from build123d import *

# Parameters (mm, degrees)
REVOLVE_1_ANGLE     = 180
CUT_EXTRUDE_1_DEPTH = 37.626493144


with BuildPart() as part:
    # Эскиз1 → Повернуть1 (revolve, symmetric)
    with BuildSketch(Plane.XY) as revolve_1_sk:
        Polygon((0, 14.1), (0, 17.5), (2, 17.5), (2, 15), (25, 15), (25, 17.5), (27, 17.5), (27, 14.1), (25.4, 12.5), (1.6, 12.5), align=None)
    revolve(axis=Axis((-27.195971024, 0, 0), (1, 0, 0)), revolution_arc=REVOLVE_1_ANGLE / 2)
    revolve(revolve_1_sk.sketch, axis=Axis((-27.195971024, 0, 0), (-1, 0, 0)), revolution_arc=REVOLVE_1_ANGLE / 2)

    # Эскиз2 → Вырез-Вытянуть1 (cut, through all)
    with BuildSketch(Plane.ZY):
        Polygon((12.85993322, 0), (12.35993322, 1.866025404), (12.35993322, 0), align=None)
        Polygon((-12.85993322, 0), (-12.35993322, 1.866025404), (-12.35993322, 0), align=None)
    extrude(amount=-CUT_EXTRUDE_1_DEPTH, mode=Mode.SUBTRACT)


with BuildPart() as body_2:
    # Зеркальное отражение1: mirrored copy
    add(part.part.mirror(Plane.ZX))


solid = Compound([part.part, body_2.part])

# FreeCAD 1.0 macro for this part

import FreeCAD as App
import Part
import Sketcher
Q = App.Units.Quantity


def add_polygon(sketch, points):
    """Adds a closed chain of lines whose ends are joined by coincident constraints."""
    first, n = sketch.GeometryCount, len(points)
    for a, b in zip(points, points[1:] + points[:1]):
        sketch.addGeometry(Part.LineSegment(App.Vector(*a, 0), App.Vector(*b, 0)), False)
    for i in range(n):
        sketch.addConstraint(Sketcher.Constraint("Coincident", first + i, 2, first + (i + 1) % n, 1))

doc = App.newDocument("Part")
params = doc.addObject("Spreadsheet::Sheet", "Params")
for row, (alias, value) in enumerate([
    ("sketch1_width", "2 mm"),
    ("sketch1_width2", "23 mm"),
    ("sketch1_width3", "23.8 mm"),
    ("sketch1_height", "3.4 mm"),
    ("sketch1_height2", "2.5 mm"),
    ("revolution_angle", "90 deg"),
    ("sketch2_width", "2 mm"),
    ("sketch2_width2", "23 mm"),
    ("sketch2_width3", "23.8 mm"),
    ("sketch2_height", "3.4 mm"),
    ("sketch2_height2", "2.5 mm"),
    ("revolution2_angle", "90 deg"),
    ("sketch3_height", "0.5 mm"),
], start=1):
    params.set(f"A{row}", alias)
    params.set(f"B{row}", "=" + value)
    params.setAlias(f"B{row}", alias)

body = doc.addObject("PartDesign::Body", "Body")

sketch1 = doc.addObject("Sketcher::SketchObject", "Sketch")
body.addObject(sketch1)
sketch1.AttachmentSupport = (doc.XY_Plane, [""])
sketch1.MapMode = "FlatFace"
add_polygon(sketch1, [(0, 17.5), (0, 14.1), (1.6, 12.5), (25.4, 12.5), (27, 14.1), (27, 17.5), (25, 17.5), (25, 15), (2, 15), (2, 17.5)])
sketch1.addConstraint([
    Sketcher.Constraint("Vertical", 0),
    Sketcher.Constraint("Horizontal", 2),
    Sketcher.Constraint("Vertical", 4),
    Sketcher.Constraint("Horizontal", 5),
    Sketcher.Constraint("Vertical", 6),
    Sketcher.Constraint("Horizontal", 7),
    Sketcher.Constraint("Vertical", 8),
    Sketcher.Constraint("Horizontal", 9),
    Sketcher.Constraint("PointOnObject", 0, 2, -2),
    Sketcher.Constraint("Perpendicular", 1, 3),
    Sketcher.Constraint("Horizontal", 0, 2, 3, 2),
    Sketcher.Constraint("Horizontal", 5, 2, 8, 2),
    Sketcher.Constraint("Equal", 5, 9),
    Sketcher.Constraint("Equal", 1, 3),
    Sketcher.Constraint("DistanceX", 5, 2, 5, 1, Q("2 mm")),
    Sketcher.Constraint("DistanceX", 7, 2, 7, 1, Q("23 mm")),
    Sketcher.Constraint("DistanceX", 2, 1, 2, 2, Q("23.8 mm")),
    Sketcher.Constraint("DistanceY", 0, 2, 0, 1, Q("3.4 mm")),
    Sketcher.Constraint("DistanceY", 6, 2, 6, 1, Q("2.5 mm")),
    Sketcher.Constraint("DistanceY", -1, 1, 6, 2, Q("15 mm")),
])
sketch1.setExpression("Constraints[24]", "Params.sketch1_width")
sketch1.setExpression("Constraints[25]", "Params.sketch1_width2")
sketch1.setExpression("Constraints[26]", "Params.sketch1_width3")
sketch1.setExpression("Constraints[27]", "Params.sketch1_height")
sketch1.setExpression("Constraints[28]", "Params.sketch1_height2")
revolution = doc.addObject("PartDesign::Revolution", "Revolution")
body.addObject(revolution)
revolution.Profile = sketch1
revolution.ReferenceAxis = (sketch1, ["H_Axis"])
revolution.setExpression("Angle", "Params.revolution_angle")

sketch2 = doc.addObject("Sketcher::SketchObject", "Sketch001")
body.addObject(sketch2)
sketch2.AttachmentSupport = (doc.XY_Plane, [""])
sketch2.MapMode = "FlatFace"
add_polygon(sketch2, [(0, 17.5), (0, 14.1), (1.6, 12.5), (25.4, 12.5), (27, 14.1), (27, 17.5), (25, 17.5), (25, 15), (2, 15), (2, 17.5)])
sketch2.addConstraint([
    Sketcher.Constraint("Vertical", 0),
    Sketcher.Constraint("Horizontal", 2),
    Sketcher.Constraint("Vertical", 4),
    Sketcher.Constraint("Horizontal", 5),
    Sketcher.Constraint("Vertical", 6),
    Sketcher.Constraint("Horizontal", 7),
    Sketcher.Constraint("Vertical", 8),
    Sketcher.Constraint("Horizontal", 9),
    Sketcher.Constraint("PointOnObject", 0, 2, -2),
    Sketcher.Constraint("Perpendicular", 1, 3),
    Sketcher.Constraint("Horizontal", 0, 2, 3, 2),
    Sketcher.Constraint("Horizontal", 5, 2, 8, 2),
    Sketcher.Constraint("Equal", 5, 9),
    Sketcher.Constraint("Equal", 1, 3),
    Sketcher.Constraint("DistanceX", 5, 2, 5, 1, Q("2 mm")),
    Sketcher.Constraint("DistanceX", 7, 2, 7, 1, Q("23 mm")),
    Sketcher.Constraint("DistanceX", 2, 1, 2, 2, Q("23.8 mm")),
    Sketcher.Constraint("DistanceY", 0, 2, 0, 1, Q("3.4 mm")),
    Sketcher.Constraint("DistanceY", 6, 2, 6, 1, Q("2.5 mm")),
    Sketcher.Constraint("DistanceY", -1, 1, 6, 2, Q("15 mm")),
])
sketch2.setExpression("Constraints[24]", "Params.sketch2_width")
sketch2.setExpression("Constraints[25]", "Params.sketch2_width2")
sketch2.setExpression("Constraints[26]", "Params.sketch2_width3")
sketch2.setExpression("Constraints[27]", "Params.sketch2_height")
sketch2.setExpression("Constraints[28]", "Params.sketch2_height2")
revolution2 = doc.addObject("PartDesign::Revolution", "Revolution001")
body.addObject(revolution2)
revolution2.Profile = sketch2
revolution2.ReferenceAxis = (sketch2, ["H_Axis"])
revolution2.setExpression("Angle", "Params.revolution2_angle")
revolution2.Reversed = True

sketch3 = doc.addObject("Sketcher::SketchObject", "Sketch002")
body.addObject(sketch3)
sketch3.AttachmentSupport = (doc.YZ_Plane, [""])
sketch3.MapMode = "FlatFace"
add_polygon(sketch3, [(0, 12.9), (1.9, 12.4), (0, 12.4)])
add_polygon(sketch3, [(1.9, -12.4), (0, -12.9), (0, -12.4)])
sketch3.addConstraint([
    Sketcher.Constraint("Horizontal", 1),
    Sketcher.Constraint("Vertical", 2),
    Sketcher.Constraint("Vertical", 4),
    Sketcher.Constraint("Horizontal", 5),
    Sketcher.Constraint("Symmetric", 2, 2, 3, 2, -1, 1),
    Sketcher.Constraint("Symmetric", 1, 2, 4, 2, -1),
    Sketcher.Constraint("Vertical", 0, 2, 5, 2),
    Sketcher.Constraint("Angle", 0, Q("-15 deg")),
    Sketcher.Constraint("DistanceY", 2, 1, 2, 2, Q("0.5 mm")),
    Sketcher.Constraint("DistanceY", -1, 1, 0, 2, Q("12.359933 mm")),
])
sketch3.setExpression("Constraints[14]", "Params.sketch3_height")
pocket1 = doc.addObject("PartDesign::Pocket", "Pocket")
body.addObject(pocket1)
pocket1.Profile = sketch3
pocket1.Type = "ThroughAll"
pocket1.Reversed = True
body2 = doc.addObject("PartDesign::Body", "Body001")
doc.recompute()

mirroring = doc.addObject("Part::Mirroring", "Mirroring")
mirroring.Source = body
mirroring.Base = App.Vector(0, 0, 0)
mirroring.Normal = App.Vector(0, 1, 0)
body2.BaseFeature = mirroring
doc.recompute()
mirroring.Visibility = False

doc.recompute()
